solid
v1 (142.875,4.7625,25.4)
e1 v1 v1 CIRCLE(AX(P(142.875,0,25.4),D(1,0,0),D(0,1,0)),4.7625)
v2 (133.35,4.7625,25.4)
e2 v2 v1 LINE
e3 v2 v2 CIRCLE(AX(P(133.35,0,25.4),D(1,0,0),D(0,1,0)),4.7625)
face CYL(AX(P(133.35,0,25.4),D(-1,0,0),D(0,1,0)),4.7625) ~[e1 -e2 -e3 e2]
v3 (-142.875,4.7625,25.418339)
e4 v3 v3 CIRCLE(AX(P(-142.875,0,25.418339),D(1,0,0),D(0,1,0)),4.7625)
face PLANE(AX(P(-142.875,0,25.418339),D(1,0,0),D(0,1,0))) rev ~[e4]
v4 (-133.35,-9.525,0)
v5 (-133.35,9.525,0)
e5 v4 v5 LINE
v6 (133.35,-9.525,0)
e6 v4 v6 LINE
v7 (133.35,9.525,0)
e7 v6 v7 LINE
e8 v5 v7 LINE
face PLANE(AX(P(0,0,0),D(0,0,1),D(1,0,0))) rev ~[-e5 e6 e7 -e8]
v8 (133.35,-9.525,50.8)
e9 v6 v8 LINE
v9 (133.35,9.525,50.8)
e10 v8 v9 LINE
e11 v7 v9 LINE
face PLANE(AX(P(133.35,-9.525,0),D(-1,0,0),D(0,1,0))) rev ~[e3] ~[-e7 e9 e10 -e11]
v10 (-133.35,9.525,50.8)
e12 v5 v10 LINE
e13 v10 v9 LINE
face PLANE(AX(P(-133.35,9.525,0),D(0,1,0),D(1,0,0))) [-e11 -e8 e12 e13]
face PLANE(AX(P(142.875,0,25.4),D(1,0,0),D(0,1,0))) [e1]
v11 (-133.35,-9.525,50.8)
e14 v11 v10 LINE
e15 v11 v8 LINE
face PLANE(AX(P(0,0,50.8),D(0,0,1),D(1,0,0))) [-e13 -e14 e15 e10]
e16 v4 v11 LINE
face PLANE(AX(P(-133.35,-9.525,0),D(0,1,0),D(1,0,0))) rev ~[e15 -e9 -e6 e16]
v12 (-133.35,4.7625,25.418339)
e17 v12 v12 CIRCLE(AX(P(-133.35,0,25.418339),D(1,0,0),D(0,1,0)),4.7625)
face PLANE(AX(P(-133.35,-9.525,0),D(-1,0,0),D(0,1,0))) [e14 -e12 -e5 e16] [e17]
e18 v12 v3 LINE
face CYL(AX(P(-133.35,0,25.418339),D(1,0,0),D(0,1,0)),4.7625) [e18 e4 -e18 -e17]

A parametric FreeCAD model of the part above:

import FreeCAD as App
import Part
import Sketcher
Q = App.Units.Quantity


def add_polygon(sketch, points):
    """Adds a closed chain of lines whose ends are joined by coincident constraints."""
    first, n = sketch.GeometryCount, len(points)
    for a, b in zip(points, points[1:] + points[:1]):
        sketch.addGeometry(Part.LineSegment(App.Vector(*a, 0), App.Vector(*b, 0)), False)
    for i in range(n):
        sketch.addConstraint(Sketcher.Constraint("Coincident", first + i, 2, first + (i + 1) % n, 1))

doc = App.newDocument("Part")
params = doc.addObject("Spreadsheet::Sheet", "Params")
for row, (alias, value) in enumerate([
    ("sketch1_width", "10.5 in"),
    ("sketch1_height", "0.75 in"),
    ("pad1_length", "2 in"),
    ("sketch2_diameter", "0.375 in"),
    ("pad2_length", "0.375 in"),
    ("sketch3_diameter", "0.375 in"),
    ("pad3_length", "0.375 in"),
], start=1):
    params.set(f"A{row}", alias)
    params.set(f"B{row}", "=" + value)
    params.setAlias(f"B{row}", alias)

body = doc.addObject("PartDesign::Body", "Body")

sketch1 = body.newObject("Sketcher::SketchObject", "Sketch")
sketch1.AttachmentSupport = (doc.getObject("XY_Plane"), [""])
sketch1.MapMode = "FlatFace"
add_polygon(sketch1, [(-133.35, 9.525), (-133.35, -9.525), (133.35, -9.525), (133.35, 9.525)])
sketch1.addConstraint([
    Sketcher.Constraint("Vertical", 0),
    Sketcher.Constraint("Horizontal", 1),
    Sketcher.Constraint("Vertical", 2),
    Sketcher.Constraint("Horizontal", 3),
    Sketcher.Constraint("Symmetric", 0, 2, 2, 2, -1, 1),
    Sketcher.Constraint("DistanceX", 1, 1, 1, 2, Q("10.5 in")),
    Sketcher.Constraint("DistanceY", 0, 2, 0, 1, Q("0.75 in")),
])
sketch1.setExpression("Constraints[9]", "Params.sketch1_width")
sketch1.setExpression("Constraints[10]", "Params.sketch1_height")
pad1 = body.newObject("PartDesign::Pad", "Pad")
pad1.Profile = sketch1
pad1.setExpression("Length", "Params.pad1_length")

sketch2 = body.newObject("Sketcher::SketchObject", "Sketch001")
sketch2.AttachmentSupport = (doc.getObject("YZ_Plane"), [""])
sketch2.MapMode = "FlatFace"
sketch2.AttachmentOffset = App.Placement(App.Vector(0, 0, 5.25 * 25.4), App.Rotation())
sketch2.addGeometry(Part.Circle(App.Vector(0, 25.4, 0), App.Vector(0, 0, 1), 4.7625), False)
sketch2.addConstraint([
    Sketcher.Constraint("PointOnObject", 0, 3, -2),
    Sketcher.Constraint("Diameter", 0, Q("0.375 in")),
    Sketcher.Constraint("DistanceY", -1, 1, 0, 3, Q("1 in")),
])
sketch2.setExpression("Constraints[1]", "Params.sketch2_diameter")
pad2 = body.newObject("PartDesign::Pad", "Pad001")
pad2.Profile = sketch2
pad2.setExpression("Length", "Params.pad2_length")

sketch3 = body.newObject("Sketcher::SketchObject", "Sketch002")
sketch3.AttachmentSupport = (doc.getObject("YZ_Plane"), [""])
sketch3.MapMode = "FlatFace"
sketch3.AttachmentOffset = App.Placement(App.Vector(0, 0, -5.25 * 25.4), App.Rotation())
sketch3.addGeometry(Part.Circle(App.Vector(0, 25.418339, 0), App.Vector(0, 0, 1), 4.7625), False)
sketch3.addConstraint([
    Sketcher.Constraint("PointOnObject", 0, 3, -2),
    Sketcher.Constraint("Diameter", 0, Q("0.375 in")),
    Sketcher.Constraint("DistanceY", -1, 1, 0, 3, 25.418339),
])
sketch3.setExpression("Constraints[1]", "Params.sketch3_diameter")
pad3 = body.newObject("PartDesign::Pad", "Pad002")
pad3.Profile = sketch3
pad3.setExpression("Length", "Params.pad3_length")
pad3.Reversed = True

doc.recompute()
